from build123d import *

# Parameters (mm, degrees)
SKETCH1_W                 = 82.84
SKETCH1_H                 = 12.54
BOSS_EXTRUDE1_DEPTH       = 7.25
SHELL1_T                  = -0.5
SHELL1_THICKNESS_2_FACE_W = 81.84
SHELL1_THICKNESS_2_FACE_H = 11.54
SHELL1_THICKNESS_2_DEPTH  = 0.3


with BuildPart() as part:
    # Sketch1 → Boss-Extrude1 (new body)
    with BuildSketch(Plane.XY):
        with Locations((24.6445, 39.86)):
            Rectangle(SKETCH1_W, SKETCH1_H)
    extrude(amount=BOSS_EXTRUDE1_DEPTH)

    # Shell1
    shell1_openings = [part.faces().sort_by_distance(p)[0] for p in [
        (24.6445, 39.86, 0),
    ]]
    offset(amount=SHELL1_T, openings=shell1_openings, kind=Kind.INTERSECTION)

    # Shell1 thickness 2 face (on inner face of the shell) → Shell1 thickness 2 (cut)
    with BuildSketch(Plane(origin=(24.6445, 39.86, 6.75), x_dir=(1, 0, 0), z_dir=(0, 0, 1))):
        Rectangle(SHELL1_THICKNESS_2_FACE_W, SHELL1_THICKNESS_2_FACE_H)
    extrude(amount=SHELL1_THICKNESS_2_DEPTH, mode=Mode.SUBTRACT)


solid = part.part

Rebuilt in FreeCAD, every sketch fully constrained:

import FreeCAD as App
import Part
import Sketcher


def faces_at(feature, points):
    """Names of the faces that lie closest to the given points."""
    faces = feature.Shape.Faces
    near = lambda p: min(range(len(faces)), key=lambda i: faces[i].distToShape(Part.Vertex(*p))[0])
    return sorted({f"Face{near(p) + 1}" for p in points})


def add_polygon(sketch, points):
    """Adds a closed chain of lines whose ends are joined by coincident constraints."""
    first, n = sketch.GeometryCount, len(points)
    for a, b in zip(points, points[1:] + points[:1]):
        sketch.addGeometry(Part.LineSegment(App.Vector(*a, 0), App.Vector(*b, 0)), False)
    for i in range(n):
        sketch.addConstraint(Sketcher.Constraint("Coincident", first + i, 2, first + (i + 1) % n, 1))

doc = App.newDocument("Part")
body = doc.addObject("PartDesign::Body", "Body")

sketch1 = doc.addObject("Sketcher::SketchObject", "Sketch")
body.addObject(sketch1)
sketch1.AttachmentSupport = (doc.XY_Plane, [""])
sketch1.MapMode = "FlatFace"
add_polygon(sketch1, [(-16.7755, 46.13), (-16.7755, 33.59), (66.0645, 33.59), (66.0645, 46.13)])
sketch1.addConstraint([
    Sketcher.Constraint("Vertical", 0),
    Sketcher.Constraint("Horizontal", 1),
    Sketcher.Constraint("Vertical", 2),
    Sketcher.Constraint("Horizontal", 3),
    Sketcher.Constraint("DistanceX", 1, 1, 1, 2, 82.84),
    Sketcher.Constraint("DistanceY", 0, 2, 0, 1, 12.54),
    Sketcher.Constraint("DistanceY", -1, 1, 0, 2, 33.59),
    Sketcher.Constraint("DistanceX", 0, 2, -1, 1, 16.7755),
])
pad1 = doc.addObject("PartDesign::Pad", "Pad")
body.addObject(pad1)
pad1.Profile = sketch1
pad1.Length = 7.25
doc.recompute()

thickness = doc.addObject("PartDesign::Thickness", "Thickness")
body.addObject(thickness)
thickness.Base = (pad1, faces_at(pad1, [(24.645, 39.86, 0)]))
thickness.Value = 0.5
thickness.Reversed = True
thickness.Join = "Intersection"

sketch2 = doc.addObject("Sketcher::SketchObject", "Sketch001")
body.addObject(sketch2)
sketch2.AttachmentSupport = (doc.XY_Plane, [""])
sketch2.MapMode = "FlatFace"
sketch2.AttachmentOffset = App.Placement(App.Vector(0, 0, 6.75), App.Rotation())
add_polygon(sketch2, [(-16.2755, 45.63), (-16.2755, 34.09), (65.5645, 34.09), (65.5645, 45.63)])
sketch2.addConstraint([
    Sketcher.Constraint("Vertical", 0),
    Sketcher.Constraint("Horizontal", 1),
    Sketcher.Constraint("Vertical", 2),
    Sketcher.Constraint("Horizontal", 3),
    Sketcher.Constraint("DistanceX", 1, 1, 1, 2, 81.84),
    Sketcher.Constraint("DistanceY", 0, 2, 0, 1, 11.54),
    Sketcher.Constraint("DistanceY", -1, 1, 0, 2, 34.09),
    Sketcher.Constraint("DistanceX", 0, 2, -1, 1, 16.2755),
])
pocket1 = doc.addObject("PartDesign::Pocket", "Pocket")
body.addObject(pocket1)
pocket1.Profile = sketch2
pocket1.Length = 0.3
pocket1.Reversed = True

doc.recompute()
